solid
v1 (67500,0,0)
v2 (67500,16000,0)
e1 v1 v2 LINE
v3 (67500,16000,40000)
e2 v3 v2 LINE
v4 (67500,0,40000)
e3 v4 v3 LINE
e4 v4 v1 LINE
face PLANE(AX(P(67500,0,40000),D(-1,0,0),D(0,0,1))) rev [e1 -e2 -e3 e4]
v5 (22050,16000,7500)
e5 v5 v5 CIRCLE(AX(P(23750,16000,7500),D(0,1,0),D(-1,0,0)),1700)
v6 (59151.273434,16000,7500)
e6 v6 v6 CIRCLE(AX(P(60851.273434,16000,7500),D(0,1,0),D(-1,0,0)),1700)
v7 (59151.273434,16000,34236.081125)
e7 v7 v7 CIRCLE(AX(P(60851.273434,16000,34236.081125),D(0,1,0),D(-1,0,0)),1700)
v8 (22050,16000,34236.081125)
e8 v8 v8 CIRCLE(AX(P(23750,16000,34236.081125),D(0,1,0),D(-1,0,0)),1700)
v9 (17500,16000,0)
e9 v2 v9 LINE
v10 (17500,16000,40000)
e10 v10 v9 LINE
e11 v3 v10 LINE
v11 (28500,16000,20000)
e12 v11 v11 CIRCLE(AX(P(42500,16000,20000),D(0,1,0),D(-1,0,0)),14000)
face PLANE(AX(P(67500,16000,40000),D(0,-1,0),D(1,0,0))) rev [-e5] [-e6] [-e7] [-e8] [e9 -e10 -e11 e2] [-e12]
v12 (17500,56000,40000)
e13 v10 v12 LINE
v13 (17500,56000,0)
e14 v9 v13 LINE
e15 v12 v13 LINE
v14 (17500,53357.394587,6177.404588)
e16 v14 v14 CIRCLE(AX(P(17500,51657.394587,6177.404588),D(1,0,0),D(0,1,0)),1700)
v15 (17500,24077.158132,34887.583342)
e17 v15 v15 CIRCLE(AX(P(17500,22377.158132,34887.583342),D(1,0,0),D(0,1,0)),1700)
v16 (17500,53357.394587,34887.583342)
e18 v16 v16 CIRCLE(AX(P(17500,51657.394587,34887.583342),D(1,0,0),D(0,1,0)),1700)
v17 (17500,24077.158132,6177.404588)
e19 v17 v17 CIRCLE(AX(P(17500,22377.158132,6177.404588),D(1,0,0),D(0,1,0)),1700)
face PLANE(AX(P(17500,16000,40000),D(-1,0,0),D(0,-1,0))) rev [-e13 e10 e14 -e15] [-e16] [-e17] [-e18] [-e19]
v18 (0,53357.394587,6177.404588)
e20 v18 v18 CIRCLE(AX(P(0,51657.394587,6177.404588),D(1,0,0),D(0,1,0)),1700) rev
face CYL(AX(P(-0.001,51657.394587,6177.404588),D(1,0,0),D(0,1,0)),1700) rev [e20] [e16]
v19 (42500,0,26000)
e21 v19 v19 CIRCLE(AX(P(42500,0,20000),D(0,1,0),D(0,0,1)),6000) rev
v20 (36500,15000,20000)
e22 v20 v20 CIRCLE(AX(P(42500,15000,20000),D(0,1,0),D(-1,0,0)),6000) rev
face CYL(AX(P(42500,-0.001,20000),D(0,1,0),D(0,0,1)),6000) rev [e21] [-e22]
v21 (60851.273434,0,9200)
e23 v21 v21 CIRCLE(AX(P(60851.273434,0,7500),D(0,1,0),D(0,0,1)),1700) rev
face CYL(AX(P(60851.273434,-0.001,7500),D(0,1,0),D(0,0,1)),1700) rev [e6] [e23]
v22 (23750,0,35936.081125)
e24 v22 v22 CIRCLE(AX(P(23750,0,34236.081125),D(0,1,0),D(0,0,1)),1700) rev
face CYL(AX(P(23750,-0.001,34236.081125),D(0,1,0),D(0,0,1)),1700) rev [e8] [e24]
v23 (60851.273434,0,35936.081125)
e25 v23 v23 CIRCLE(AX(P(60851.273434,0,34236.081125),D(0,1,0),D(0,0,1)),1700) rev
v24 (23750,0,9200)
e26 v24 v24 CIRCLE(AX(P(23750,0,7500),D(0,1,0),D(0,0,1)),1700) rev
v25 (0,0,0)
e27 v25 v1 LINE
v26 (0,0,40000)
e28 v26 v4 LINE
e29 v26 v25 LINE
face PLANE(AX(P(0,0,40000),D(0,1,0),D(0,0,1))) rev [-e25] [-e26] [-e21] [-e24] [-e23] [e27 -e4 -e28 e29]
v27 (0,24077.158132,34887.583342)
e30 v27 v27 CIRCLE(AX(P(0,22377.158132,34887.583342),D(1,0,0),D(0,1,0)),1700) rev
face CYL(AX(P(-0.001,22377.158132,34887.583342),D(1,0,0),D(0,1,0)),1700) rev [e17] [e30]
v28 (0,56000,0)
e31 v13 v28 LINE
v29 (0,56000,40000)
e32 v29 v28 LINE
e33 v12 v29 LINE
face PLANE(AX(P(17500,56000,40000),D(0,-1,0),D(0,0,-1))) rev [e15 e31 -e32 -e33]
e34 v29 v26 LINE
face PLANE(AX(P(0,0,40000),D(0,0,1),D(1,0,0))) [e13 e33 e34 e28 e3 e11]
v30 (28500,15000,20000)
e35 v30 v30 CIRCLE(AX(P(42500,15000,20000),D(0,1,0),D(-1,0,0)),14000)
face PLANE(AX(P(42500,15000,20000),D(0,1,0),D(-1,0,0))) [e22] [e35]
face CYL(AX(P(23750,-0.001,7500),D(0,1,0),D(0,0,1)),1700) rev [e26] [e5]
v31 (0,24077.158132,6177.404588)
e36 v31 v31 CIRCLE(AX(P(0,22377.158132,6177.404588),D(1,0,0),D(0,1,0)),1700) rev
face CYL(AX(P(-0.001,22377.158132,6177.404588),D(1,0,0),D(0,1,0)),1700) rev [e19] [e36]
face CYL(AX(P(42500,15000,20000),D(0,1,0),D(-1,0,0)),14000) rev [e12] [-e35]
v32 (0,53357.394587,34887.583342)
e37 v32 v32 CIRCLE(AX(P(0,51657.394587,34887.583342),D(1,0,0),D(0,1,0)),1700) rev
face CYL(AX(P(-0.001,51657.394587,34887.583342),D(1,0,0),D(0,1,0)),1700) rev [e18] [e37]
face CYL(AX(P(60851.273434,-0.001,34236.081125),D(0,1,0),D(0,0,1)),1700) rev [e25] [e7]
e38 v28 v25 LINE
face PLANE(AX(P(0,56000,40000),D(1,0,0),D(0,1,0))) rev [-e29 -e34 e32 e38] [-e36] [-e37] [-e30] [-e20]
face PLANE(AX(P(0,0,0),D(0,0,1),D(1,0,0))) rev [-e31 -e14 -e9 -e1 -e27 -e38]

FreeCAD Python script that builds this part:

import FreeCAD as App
import Part
import Sketcher

V = App.Vector


def add_polygon(sketch, points):
    """Adds a closed chain of lines whose ends are joined by coincident constraints."""
    first, n = sketch.GeometryCount, len(points)
    for a, b in zip(points, points[1:] + points[:1]):
        sketch.addGeometry(Part.LineSegment(App.Vector(*a, 0), App.Vector(*b, 0)), False)
    for i in range(n):
        sketch.addConstraint(Sketcher.Constraint("Coincident", first + i, 2, first + (i + 1) % n, 1))

doc = App.newDocument("Part")
body = doc.addObject("PartDesign::Body", "Body")

sketch1 = body.newObject("Sketcher::SketchObject", "Sketch")
sketch1.AttachmentSupport = (doc.getObject("XY_Plane"), [""])
sketch1.MapMode = "FlatFace"
add_polygon(sketch1, [(0, 56000), (0, 0), (67500, 0), (67500, 16000), (17500, 16000), (17500, 56000)])
sketch1.addConstraint([
    Sketcher.Constraint("Vertical", 0),
    Sketcher.Constraint("Horizontal", 1),
    Sketcher.Constraint("Vertical", 2),
    Sketcher.Constraint("Horizontal", 3),
    Sketcher.Constraint("Vertical", 4),
    Sketcher.Constraint("Horizontal", 5),
    Sketcher.Constraint("Coincident", 0, 2, -1, 1),
    Sketcher.Constraint("DistanceX", 1, 1, 1, 2, 67500.0),
    Sketcher.Constraint("DistanceX", 3, 2, 3, 1, 50000.0),
    Sketcher.Constraint("DistanceY", 0, 2, 0, 1, 56000.0),
    Sketcher.Constraint("DistanceY", 2, 1, 2, 2, 16000.0),
])
pad1 = body.newObject("PartDesign::Pad", "Pad")
pad1.Profile = sketch1
pad1.Length = 40000

sketch2 = body.newObject("Sketcher::SketchObject", "Sketch001")
sketch2.AttachmentSupport = (doc.getObject("XZ_Plane"), [""])
sketch2.MapMode = "FlatFace"
sketch2.AttachmentOffset = App.Placement(V(0, 0, -16000), App.Rotation())
sketch2.addGeometry([
    Part.Circle(V(42500, 20000, 0), V(0, 0, 1), 6000),
    Part.Circle(V(23750, 7500, 0), V(0, 0, 1), 1700),
    Part.Circle(V(60851.273434, 7500, 0), V(0, 0, 1), 1700),
    Part.Circle(V(60851.273434, 34236.081125, 0), V(0, 0, 1), 1700),
    Part.Circle(V(23750, 34236.081125, 0), V(0, 0, 1), 1700),
], False)
sketch2.addConstraint([
    Sketcher.Constraint("Equal", 1, 2),
    Sketcher.Constraint("Equal", 2, 3),
    Sketcher.Constraint("Equal", 3, 4),
    Sketcher.Constraint("Horizontal", 1, 3, 2, 3),
    Sketcher.Constraint("Horizontal", 3, 3, 4, 3),
    Sketcher.Constraint("Vertical", 2, 3, 3, 3),
    Sketcher.Constraint("Vertical", 1, 3, 4, 3),
    Sketcher.Constraint("Diameter", 0, 12000.0),
    Sketcher.Constraint("Diameter", 1, 3400.0),
    Sketcher.Constraint("DistanceX", -1, 1, 0, 3, 42500.0),
    Sketcher.Constraint("DistanceY", -1, 1, 0, 3, 20000.0),
    Sketcher.Constraint("DistanceX", -1, 1, 1, 3, 23750.0),
    Sketcher.Constraint("DistanceY", -1, 1, 1, 3, 7500.0),
    Sketcher.Constraint("DistanceX", -1, 1, 2, 3, 60851.273434),
    Sketcher.Constraint("DistanceY", -1, 1, 3, 3, 34236.081125),
])
pocket1 = body.newObject("PartDesign::Pocket", "Pocket")
pocket1.Profile = sketch2
pocket1.Length = 16000
pocket1.Reversed = True

sketch3 = body.newObject("Sketcher::SketchObject", "Sketch002")
sketch3.AttachmentSupport = (doc.getObject("YZ_Plane"), [""])
sketch3.MapMode = "FlatFace"
sketch3.AttachmentOffset = App.Placement(V(0, 0, 17500), App.Rotation())
sketch3.addGeometry([
    Part.Circle(V(51657.394587, 34887.583342, 0), V(0, 0, 1), 1700),
    Part.Circle(V(51657.394587, 6177.404588, 0), V(0, 0, 1), 1700),
    Part.Circle(V(22377.158132, 34887.583342, 0), V(0, 0, 1), 1700),
    Part.Circle(V(22377.158132, 6177.404588, 0), V(0, 0, 1), 1700),
], False)
sketch3.addConstraint([
    Sketcher.Constraint("Equal", 0, 1),
    Sketcher.Constraint("Equal", 1, 2),
    Sketcher.Constraint("Equal", 2, 3),
    Sketcher.Constraint("Horizontal", 0, 3, 2, 3),
    Sketcher.Constraint("Horizontal", 1, 3, 3, 3),
    Sketcher.Constraint("Vertical", 0, 3, 1, 3),
    Sketcher.Constraint("Vertical", 2, 3, 3, 3),
    Sketcher.Constraint("Diameter", 0, 3400.0),
    Sketcher.Constraint("DistanceY", -1, 1, 0, 3, 34887.583342),
    Sketcher.Constraint("DistanceX", -1, 1, 0, 3, 51657.394587),
    Sketcher.Constraint("DistanceY", -1, 1, 1, 3, 6177.404588),
    Sketcher.Constraint("DistanceX", -1, 1, 2, 3, 22377.158132),
])
pocket2 = body.newObject("PartDesign::Pocket", "Pocket001")
pocket2.Profile = sketch3
pocket2.Length = 17500

sketch4 = body.newObject("Sketcher::SketchObject", "Sketch003")
sketch4.AttachmentSupport = (doc.getObject("XZ_Plane"), [""])
sketch4.MapMode = "FlatFace"
sketch4.AttachmentOffset = App.Placement(V(0, 0, -16000), App.Rotation())
sketch4.addGeometry(Part.Circle(V(42500, 20000, 0), V(0, 0, 1), 14000), False)
sketch4.addConstraint([
    Sketcher.Constraint("Diameter", 0, 28000.0),
    Sketcher.Constraint("DistanceX", -1, 1, 0, 3, 42500.0),
    Sketcher.Constraint("DistanceY", -1, 1, 0, 3, 20000.0),
])
pocket3 = body.newObject("PartDesign::Pocket", "Pocket002")
pocket3.Profile = sketch4
pocket3.Length = 1000
pocket3.Reversed = True

doc.recompute()
